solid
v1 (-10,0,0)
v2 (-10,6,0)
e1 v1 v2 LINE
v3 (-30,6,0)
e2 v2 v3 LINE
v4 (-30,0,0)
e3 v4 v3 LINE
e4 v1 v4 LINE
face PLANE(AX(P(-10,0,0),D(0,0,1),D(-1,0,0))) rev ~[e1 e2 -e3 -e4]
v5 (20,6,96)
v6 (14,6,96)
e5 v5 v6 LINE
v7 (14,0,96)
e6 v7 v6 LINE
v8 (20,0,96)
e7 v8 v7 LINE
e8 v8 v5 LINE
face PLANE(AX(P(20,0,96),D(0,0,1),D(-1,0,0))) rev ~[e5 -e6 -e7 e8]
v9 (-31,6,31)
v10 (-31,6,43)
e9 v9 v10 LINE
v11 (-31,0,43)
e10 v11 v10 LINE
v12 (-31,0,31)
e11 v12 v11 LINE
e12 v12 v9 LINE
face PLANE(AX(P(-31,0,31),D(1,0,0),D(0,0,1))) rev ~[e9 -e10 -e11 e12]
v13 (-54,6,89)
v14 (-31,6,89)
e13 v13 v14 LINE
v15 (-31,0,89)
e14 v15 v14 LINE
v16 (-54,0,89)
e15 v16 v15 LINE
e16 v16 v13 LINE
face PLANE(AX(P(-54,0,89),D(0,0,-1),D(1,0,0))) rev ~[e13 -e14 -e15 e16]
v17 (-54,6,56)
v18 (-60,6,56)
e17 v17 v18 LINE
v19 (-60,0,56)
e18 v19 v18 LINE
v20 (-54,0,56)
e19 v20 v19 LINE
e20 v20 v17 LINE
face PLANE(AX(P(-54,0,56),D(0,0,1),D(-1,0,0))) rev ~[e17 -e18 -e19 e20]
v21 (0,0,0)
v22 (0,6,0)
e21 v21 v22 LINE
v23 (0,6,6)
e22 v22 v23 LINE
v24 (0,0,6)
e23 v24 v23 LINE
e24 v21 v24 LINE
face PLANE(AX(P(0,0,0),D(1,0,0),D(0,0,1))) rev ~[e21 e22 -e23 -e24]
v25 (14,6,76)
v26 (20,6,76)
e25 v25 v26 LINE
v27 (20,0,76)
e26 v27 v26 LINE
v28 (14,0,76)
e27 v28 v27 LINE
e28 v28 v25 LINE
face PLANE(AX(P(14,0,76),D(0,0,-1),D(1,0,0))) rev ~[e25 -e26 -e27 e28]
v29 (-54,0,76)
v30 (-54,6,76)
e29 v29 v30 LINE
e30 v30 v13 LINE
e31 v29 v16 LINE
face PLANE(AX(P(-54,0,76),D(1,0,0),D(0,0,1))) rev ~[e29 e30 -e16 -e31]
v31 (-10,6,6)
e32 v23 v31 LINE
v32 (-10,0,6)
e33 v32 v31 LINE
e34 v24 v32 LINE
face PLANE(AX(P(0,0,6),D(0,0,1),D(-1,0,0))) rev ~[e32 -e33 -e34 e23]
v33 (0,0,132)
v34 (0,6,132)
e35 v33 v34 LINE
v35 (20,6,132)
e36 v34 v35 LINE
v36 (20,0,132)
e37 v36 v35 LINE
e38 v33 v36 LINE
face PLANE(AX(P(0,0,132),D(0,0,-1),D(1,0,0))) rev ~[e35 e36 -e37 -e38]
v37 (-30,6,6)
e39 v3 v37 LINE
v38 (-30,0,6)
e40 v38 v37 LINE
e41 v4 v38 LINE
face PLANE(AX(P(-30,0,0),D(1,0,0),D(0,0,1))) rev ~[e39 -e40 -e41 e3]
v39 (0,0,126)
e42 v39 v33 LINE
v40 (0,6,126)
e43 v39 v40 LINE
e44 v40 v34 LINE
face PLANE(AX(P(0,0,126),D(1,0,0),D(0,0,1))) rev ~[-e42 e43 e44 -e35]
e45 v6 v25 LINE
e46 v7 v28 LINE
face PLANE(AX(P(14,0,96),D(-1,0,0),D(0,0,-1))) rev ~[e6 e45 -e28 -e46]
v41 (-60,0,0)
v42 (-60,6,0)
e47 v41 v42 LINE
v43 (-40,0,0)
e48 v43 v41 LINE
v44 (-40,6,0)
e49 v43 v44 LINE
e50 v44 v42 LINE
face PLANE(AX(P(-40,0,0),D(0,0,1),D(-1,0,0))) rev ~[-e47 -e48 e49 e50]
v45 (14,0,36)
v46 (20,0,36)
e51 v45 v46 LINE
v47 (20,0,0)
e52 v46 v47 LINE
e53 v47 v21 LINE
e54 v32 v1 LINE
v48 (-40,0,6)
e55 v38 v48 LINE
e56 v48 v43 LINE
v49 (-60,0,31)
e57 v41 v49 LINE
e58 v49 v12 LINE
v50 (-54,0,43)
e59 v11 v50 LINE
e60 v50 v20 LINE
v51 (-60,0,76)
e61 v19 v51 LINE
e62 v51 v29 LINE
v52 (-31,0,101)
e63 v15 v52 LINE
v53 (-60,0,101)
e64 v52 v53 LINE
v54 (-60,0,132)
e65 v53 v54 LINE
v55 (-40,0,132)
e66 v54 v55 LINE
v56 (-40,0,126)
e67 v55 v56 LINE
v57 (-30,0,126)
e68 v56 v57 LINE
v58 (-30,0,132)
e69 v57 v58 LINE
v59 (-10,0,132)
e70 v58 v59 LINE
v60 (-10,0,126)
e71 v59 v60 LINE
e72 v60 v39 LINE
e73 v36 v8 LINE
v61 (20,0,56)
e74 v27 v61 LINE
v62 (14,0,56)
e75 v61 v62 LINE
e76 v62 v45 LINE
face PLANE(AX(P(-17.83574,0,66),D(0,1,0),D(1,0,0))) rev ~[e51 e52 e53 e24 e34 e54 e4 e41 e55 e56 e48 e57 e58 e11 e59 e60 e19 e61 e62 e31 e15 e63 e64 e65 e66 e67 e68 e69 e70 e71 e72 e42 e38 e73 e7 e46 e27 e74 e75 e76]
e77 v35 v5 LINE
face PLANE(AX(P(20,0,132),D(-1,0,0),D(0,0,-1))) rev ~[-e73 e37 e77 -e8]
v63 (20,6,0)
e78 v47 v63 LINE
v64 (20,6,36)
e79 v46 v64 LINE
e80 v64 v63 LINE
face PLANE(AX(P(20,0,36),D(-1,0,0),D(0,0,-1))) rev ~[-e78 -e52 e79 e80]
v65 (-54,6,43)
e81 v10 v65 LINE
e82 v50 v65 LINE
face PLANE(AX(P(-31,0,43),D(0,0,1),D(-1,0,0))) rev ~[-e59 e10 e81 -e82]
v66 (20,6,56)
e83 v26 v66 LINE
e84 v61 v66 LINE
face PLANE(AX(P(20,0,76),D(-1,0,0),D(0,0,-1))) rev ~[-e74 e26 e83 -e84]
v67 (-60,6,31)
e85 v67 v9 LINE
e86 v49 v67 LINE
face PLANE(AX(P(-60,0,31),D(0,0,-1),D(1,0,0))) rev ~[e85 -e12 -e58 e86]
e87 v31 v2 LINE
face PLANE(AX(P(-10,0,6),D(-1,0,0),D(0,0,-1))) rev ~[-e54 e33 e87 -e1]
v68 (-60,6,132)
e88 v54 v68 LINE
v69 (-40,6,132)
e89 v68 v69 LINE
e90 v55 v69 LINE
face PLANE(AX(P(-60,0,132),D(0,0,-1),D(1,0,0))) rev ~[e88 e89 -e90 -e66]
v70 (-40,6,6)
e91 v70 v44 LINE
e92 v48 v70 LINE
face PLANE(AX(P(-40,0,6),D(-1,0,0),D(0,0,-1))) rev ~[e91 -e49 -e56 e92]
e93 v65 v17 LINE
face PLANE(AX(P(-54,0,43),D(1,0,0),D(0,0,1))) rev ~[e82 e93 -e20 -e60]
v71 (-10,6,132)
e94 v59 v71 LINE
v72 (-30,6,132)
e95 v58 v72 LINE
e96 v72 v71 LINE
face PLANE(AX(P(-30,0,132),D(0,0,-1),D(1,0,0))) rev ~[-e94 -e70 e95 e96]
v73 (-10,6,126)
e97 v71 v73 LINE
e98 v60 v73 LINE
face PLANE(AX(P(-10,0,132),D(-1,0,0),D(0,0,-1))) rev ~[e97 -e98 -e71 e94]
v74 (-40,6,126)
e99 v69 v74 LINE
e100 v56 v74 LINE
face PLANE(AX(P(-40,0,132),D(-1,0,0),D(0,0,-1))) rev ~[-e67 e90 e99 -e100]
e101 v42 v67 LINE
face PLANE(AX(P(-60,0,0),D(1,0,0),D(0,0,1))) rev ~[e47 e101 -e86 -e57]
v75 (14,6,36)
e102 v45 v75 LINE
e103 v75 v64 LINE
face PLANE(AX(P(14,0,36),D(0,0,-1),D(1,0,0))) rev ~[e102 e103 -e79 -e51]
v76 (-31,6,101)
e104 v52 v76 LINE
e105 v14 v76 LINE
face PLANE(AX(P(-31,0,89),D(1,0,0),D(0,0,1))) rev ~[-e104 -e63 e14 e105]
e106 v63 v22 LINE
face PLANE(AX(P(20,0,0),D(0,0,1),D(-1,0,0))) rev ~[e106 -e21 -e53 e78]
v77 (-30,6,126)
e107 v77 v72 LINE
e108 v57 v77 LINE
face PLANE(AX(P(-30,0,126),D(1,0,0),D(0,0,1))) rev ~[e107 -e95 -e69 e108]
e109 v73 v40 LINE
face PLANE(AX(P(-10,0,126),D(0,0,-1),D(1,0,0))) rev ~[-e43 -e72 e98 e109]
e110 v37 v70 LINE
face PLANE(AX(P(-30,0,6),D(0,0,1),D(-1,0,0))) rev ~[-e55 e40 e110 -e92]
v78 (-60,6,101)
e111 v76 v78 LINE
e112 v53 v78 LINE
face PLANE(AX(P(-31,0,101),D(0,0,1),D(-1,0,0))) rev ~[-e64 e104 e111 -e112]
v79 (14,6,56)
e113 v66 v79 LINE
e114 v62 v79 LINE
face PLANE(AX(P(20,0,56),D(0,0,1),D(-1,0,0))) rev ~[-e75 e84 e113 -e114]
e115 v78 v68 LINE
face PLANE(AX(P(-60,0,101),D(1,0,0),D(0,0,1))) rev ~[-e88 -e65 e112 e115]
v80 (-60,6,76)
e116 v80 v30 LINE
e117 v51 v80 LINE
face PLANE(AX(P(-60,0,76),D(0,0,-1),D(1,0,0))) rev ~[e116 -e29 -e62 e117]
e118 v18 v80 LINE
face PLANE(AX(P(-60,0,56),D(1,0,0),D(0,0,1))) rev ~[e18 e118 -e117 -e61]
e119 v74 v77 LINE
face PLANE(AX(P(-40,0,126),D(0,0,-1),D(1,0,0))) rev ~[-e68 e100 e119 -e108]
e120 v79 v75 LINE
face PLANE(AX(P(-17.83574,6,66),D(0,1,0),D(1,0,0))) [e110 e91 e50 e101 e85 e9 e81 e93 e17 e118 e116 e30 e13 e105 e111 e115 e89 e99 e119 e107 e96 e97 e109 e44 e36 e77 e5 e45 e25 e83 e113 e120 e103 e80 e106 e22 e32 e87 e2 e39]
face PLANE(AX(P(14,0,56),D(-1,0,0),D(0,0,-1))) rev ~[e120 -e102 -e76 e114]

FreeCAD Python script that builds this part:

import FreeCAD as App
import Part
import Sketcher

doc = App.newDocument("Part")
params = doc.addObject("Spreadsheet::Sheet", "Params")
for row, (alias, value) in enumerate([
    ("sketch1_width", "20 mm"),
    ("sketch1_width2", "29 mm"),
    ("sketch1_width3", "23 mm"),
    ("sketch1_width4", "10 mm"),
    ("sketch1_height", "31 mm"),
    ("pad1_length", "6 mm"),
], start=1):
    params.set(f"A{row}", alias)
    params.set(f"B{row}", "=" + value)
    params.setAlias(f"B{row}", alias)

body = doc.addObject("PartDesign::Body", "Body")

sketch1 = body.newObject("Sketcher::SketchObject", "Sketch")
sketch1.AttachmentSupport = (doc.getObject("XZ_Plane"), [""])
sketch1.MapMode = "FlatFace"
sketch1.addGeometry(Part.LineSegment(App.Vector(-40, 6, 0), App.Vector(-40, 0, 0)), False)
sketch1.addGeometry(Part.LineSegment(App.Vector(-40, 0, 0), App.Vector(-60, 0, 0)), False)
sketch1.addGeometry(Part.LineSegment(App.Vector(-60, 0, 0), App.Vector(-60, 31, 0)), False)
sketch1.addGeometry(Part.LineSegment(App.Vector(-60, 31, 0), App.Vector(-31, 31, 0)), False)
sketch1.addGeometry(Part.LineSegment(App.Vector(-31, 31, 0), App.Vector(-31, 43, 0)), False)
sketch1.addGeometry(Part.LineSegment(App.Vector(-31, 43, 0), App.Vector(-54, 43, 0)), False)
sketch1.addGeometry(Part.LineSegment(App.Vector(-54, 43, 0), App.Vector(-54, 56, 0)), False)
sketch1.addGeometry(Part.LineSegment(App.Vector(-54, 56, 0), App.Vector(-60, 56, 0)), False)
sketch1.addGeometry(Part.LineSegment(App.Vector(-60, 56, 0), App.Vector(-60, 76, 0)), False)
sketch1.addGeometry(Part.LineSegment(App.Vector(-60, 76, 0), App.Vector(-54, 76, 0)), False)
sketch1.addGeometry(Part.LineSegment(App.Vector(-54, 76, 0), App.Vector(-54, 89, 0)), False)
sketch1.addGeometry(Part.LineSegment(App.Vector(-54, 89, 0), App.Vector(-31, 89, 0)), False)
sketch1.addGeometry(Part.LineSegment(App.Vector(-31, 89, 0), App.Vector(-31, 101, 0)), False)
sketch1.addGeometry(Part.LineSegment(App.Vector(-31, 101, 0), App.Vector(-60, 101, 0)), False)
sketch1.addGeometry(Part.LineSegment(App.Vector(-60, 101, 0), App.Vector(-60, 132, 0)), False)
sketch1.addGeometry(Part.LineSegment(App.Vector(-60, 132, 0), App.Vector(-40, 132, 0)), False)
sketch1.addGeometry(Part.LineSegment(App.Vector(-40, 132, 0), App.Vector(-40, 126, 0)), False)
sketch1.addGeometry(Part.LineSegment(App.Vector(-40, 126, 0), App.Vector(-30, 126, 0)), False)
sketch1.addGeometry(Part.LineSegment(App.Vector(-30, 126, 0), App.Vector(-30, 132, 0)), False)
sketch1.addGeometry(Part.LineSegment(App.Vector(-30, 132, 0), App.Vector(-10, 132, 0)), False)
sketch1.addGeometry(Part.LineSegment(App.Vector(-10, 132, 0), App.Vector(-10, 126, 0)), False)
sketch1.addGeometry(Part.LineSegment(App.Vector(-10, 126, 0), App.Vector(0, 126, 0)), False)
sketch1.addGeometry(Part.LineSegment(App.Vector(0, 126, 0), App.Vector(0, 132, 0)), False)
sketch1.addGeometry(Part.LineSegment(App.Vector(0, 132, 0), App.Vector(20, 132, 0)), False)
sketch1.addGeometry(Part.LineSegment(App.Vector(20, 132, 0), App.Vector(20, 96, 0)), False)
sketch1.addGeometry(Part.LineSegment(App.Vector(20, 96, 0), App.Vector(14, 96, 0)), False)
sketch1.addGeometry(Part.LineSegment(App.Vector(14, 96, 0), App.Vector(14, 76, 0)), False)
sketch1.addGeometry(Part.LineSegment(App.Vector(14, 76, 0), App.Vector(20, 76, 0)), False)
sketch1.addGeometry(Part.LineSegment(App.Vector(20, 76, 0), App.Vector(20, 56, 0)), False)
sketch1.addGeometry(Part.LineSegment(App.Vector(20, 56, 0), App.Vector(14, 56, 0)), False)
sketch1.addGeometry(Part.LineSegment(App.Vector(14, 56, 0), App.Vector(14, 36, 0)), False)
sketch1.addGeometry(Part.LineSegment(App.Vector(14, 36, 0), App.Vector(20, 36, 0)), False)
sketch1.addGeometry(Part.LineSegment(App.Vector(20, 36, 0), App.Vector(20, 0, 0)), False)
sketch1.addGeometry(Part.LineSegment(App.Vector(20, 0, 0), App.Vector(0, 0, 0)), False)
sketch1.addGeometry(Part.LineSegment(App.Vector(0, 0, 0), App.Vector(0, 6, 0)), False)
sketch1.addGeometry(Part.LineSegment(App.Vector(0, 6, 0), App.Vector(-10, 6, 0)), False)
sketch1.addGeometry(Part.LineSegment(App.Vector(-10, 6, 0), App.Vector(-10, 0, 0)), False)
sketch1.addGeometry(Part.LineSegment(App.Vector(-10, 0, 0), App.Vector(-30, 0, 0)), False)
sketch1.addGeometry(Part.LineSegment(App.Vector(-30, 0, 0), App.Vector(-30, 6, 0)), False)
sketch1.addGeometry(Part.LineSegment(App.Vector(-30, 6, 0), App.Vector(-40, 6, 0)), False)
sketch1.addConstraint(Sketcher.Constraint("Coincident", 0, 2, 1, 1))
sketch1.addConstraint(Sketcher.Constraint("Coincident", 1, 2, 2, 1))
sketch1.addConstraint(Sketcher.Constraint("Coincident", 2, 2, 3, 1))
sketch1.addConstraint(Sketcher.Constraint("Coincident", 3, 2, 4, 1))
sketch1.addConstraint(Sketcher.Constraint("Coincident", 4, 2, 5, 1))
sketch1.addConstraint(Sketcher.Constraint("Coincident", 5, 2, 6, 1))
sketch1.addConstraint(Sketcher.Constraint("Coincident", 6, 2, 7, 1))
sketch1.addConstraint(Sketcher.Constraint("Coincident", 7, 2, 8, 1))
sketch1.addConstraint(Sketcher.Constraint("Coincident", 8, 2, 9, 1))
sketch1.addConstraint(Sketcher.Constraint("Coincident", 9, 2, 10, 1))
sketch1.addConstraint(Sketcher.Constraint("Coincident", 10, 2, 11, 1))
sketch1.addConstraint(Sketcher.Constraint("Coincident", 11, 2, 12, 1))
sketch1.addConstraint(Sketcher.Constraint("Coincident", 12, 2, 13, 1))
sketch1.addConstraint(Sketcher.Constraint("Coincident", 13, 2, 14, 1))
sketch1.addConstraint(Sketcher.Constraint("Coincident", 14, 2, 15, 1))
sketch1.addConstraint(Sketcher.Constraint("Coincident", 15, 2, 16, 1))
sketch1.addConstraint(Sketcher.Constraint("Coincident", 16, 2, 17, 1))
sketch1.addConstraint(Sketcher.Constraint("Coincident", 17, 2, 18, 1))
sketch1.addConstraint(Sketcher.Constraint("Coincident", 18, 2, 19, 1))
sketch1.addConstraint(Sketcher.Constraint("Coincident", 19, 2, 20, 1))
sketch1.addConstraint(Sketcher.Constraint("Coincident", 20, 2, 21, 1))
sketch1.addConstraint(Sketcher.Constraint("Coincident", 21, 2, 22, 1))
sketch1.addConstraint(Sketcher.Constraint("Coincident", 22, 2, 23, 1))
sketch1.addConstraint(Sketcher.Constraint("Coincident", 23, 2, 24, 1))
sketch1.addConstraint(Sketcher.Constraint("Coincident", 24, 2, 25, 1))
sketch1.addConstraint(Sketcher.Constraint("Coincident", 25, 2, 26, 1))
sketch1.addConstraint(Sketcher.Constraint("Coincident", 26, 2, 27, 1))
sketch1.addConstraint(Sketcher.Constraint("Coincident", 27, 2, 28, 1))
sketch1.addConstraint(Sketcher.Constraint("Coincident", 28, 2, 29, 1))
sketch1.addConstraint(Sketcher.Constraint("Coincident", 29, 2, 30, 1))
sketch1.addConstraint(Sketcher.Constraint("Coincident", 30, 2, 31, 1))
sketch1.addConstraint(Sketcher.Constraint("Coincident", 31, 2, 32, 1))
sketch1.addConstraint(Sketcher.Constraint("Coincident", 32, 2, 33, 1))
sketch1.addConstraint(Sketcher.Constraint("Coincident", 33, 2, 34, 1))
sketch1.addConstraint(Sketcher.Constraint("Coincident", 34, 2, 35, 1))
sketch1.addConstraint(Sketcher.Constraint("Coincident", 35, 2, 36, 1))
sketch1.addConstraint(Sketcher.Constraint("Coincident", 36, 2, 37, 1))
sketch1.addConstraint(Sketcher.Constraint("Coincident", 37, 2, 38, 1))
sketch1.addConstraint(Sketcher.Constraint("Coincident", 38, 2, 39, 1))
sketch1.addConstraint(Sketcher.Constraint("Coincident", 39, 2, 0, 1))
sketch1.addConstraint(Sketcher.Constraint("Vertical", 0))
sketch1.addConstraint(Sketcher.Constraint("Horizontal", 1))
sketch1.addConstraint(Sketcher.Constraint("Vertical", 2))
sketch1.addConstraint(Sketcher.Constraint("Horizontal", 3))
sketch1.addConstraint(Sketcher.Constraint("Vertical", 4))
sketch1.addConstraint(Sketcher.Constraint("Horizontal", 5))
sketch1.addConstraint(Sketcher.Constraint("Vertical", 6))
sketch1.addConstraint(Sketcher.Constraint("Horizontal", 7))
sketch1.addConstraint(Sketcher.Constraint("Vertical", 8))
sketch1.addConstraint(Sketcher.Constraint("Horizontal", 9))
sketch1.addConstraint(Sketcher.Constraint("Vertical", 10))
sketch1.addConstraint(Sketcher.Constraint("Horizontal", 11))
sketch1.addConstraint(Sketcher.Constraint("Vertical", 12))
sketch1.addConstraint(Sketcher.Constraint("Horizontal", 13))
sketch1.addConstraint(Sketcher.Constraint("Vertical", 14))
sketch1.addConstraint(Sketcher.Constraint("Horizontal", 15))
sketch1.addConstraint(Sketcher.Constraint("Vertical", 16))
sketch1.addConstraint(Sketcher.Constraint("Horizontal", 17))
sketch1.addConstraint(Sketcher.Constraint("Vertical", 18))
sketch1.addConstraint(Sketcher.Constraint("Horizontal", 19))
sketch1.addConstraint(Sketcher.Constraint("Vertical", 20))
sketch1.addConstraint(Sketcher.Constraint("Horizontal", 21))
sketch1.addConstraint(Sketcher.Constraint("Vertical", 22))
sketch1.addConstraint(Sketcher.Constraint("Horizontal", 23))
sketch1.addConstraint(Sketcher.Constraint("Vertical", 24))
sketch1.addConstraint(Sketcher.Constraint("Horizontal", 25))
sketch1.addConstraint(Sketcher.Constraint("Vertical", 26))
sketch1.addConstraint(Sketcher.Constraint("Horizontal", 27))
sketch1.addConstraint(Sketcher.Constraint("Vertical", 28))
sketch1.addConstraint(Sketcher.Constraint("Horizontal", 29))
sketch1.addConstraint(Sketcher.Constraint("Vertical", 30))
sketch1.addConstraint(Sketcher.Constraint("Horizontal", 31))
sketch1.addConstraint(Sketcher.Constraint("Vertical", 32))
sketch1.addConstraint(Sketcher.Constraint("Horizontal", 33))
sketch1.addConstraint(Sketcher.Constraint("Vertical", 34))
sketch1.addConstraint(Sketcher.Constraint("Horizontal", 35))
sketch1.addConstraint(Sketcher.Constraint("Vertical", 36))
sketch1.addConstraint(Sketcher.Constraint("Horizontal", 37))
sketch1.addConstraint(Sketcher.Constraint("Vertical", 38))
sketch1.addConstraint(Sketcher.Constraint("Horizontal", 39))
sketch1.addConstraint(Sketcher.Constraint("Coincident", 33, 2, -1, 1))
sketch1.addConstraint(Sketcher.Constraint("PointOnObject", 0, 2, -1))
sketch1.addConstraint(Sketcher.Constraint("PointOnObject", 21, 2, -2))
sketch1.addConstraint(Sketcher.Constraint("PointOnObject", 36, 2, -1))
sketch1.addConstraint(Sketcher.Constraint("Horizontal", 15, 2, 18, 2))
sketch1.addConstraint(Sketcher.Constraint("Horizontal", 17, 2, 20, 2))
sketch1.addConstraint(Sketcher.Constraint("Horizontal", 19, 2, 22, 2))
sketch1.addConstraint(Sketcher.Constraint("Horizontal", 9, 2, 26, 2))
sketch1.addConstraint(Sketcher.Constraint("Horizontal", 7, 2, 28, 2))
sketch1.addConstraint(Sketcher.Constraint("Horizontal", 35, 2, 38, 2))
sketch1.addConstraint(Sketcher.Constraint("Vertical", 2, 2, 7, 2))
sketch1.addConstraint(Sketcher.Constraint("Vertical", 6, 2, 9, 2))
sketch1.addConstraint(Sketcher.Constraint("Vertical", 4, 2, 11, 2))
sketch1.addConstraint(Sketcher.Constraint("Vertical", 8, 2, 13, 2))
sketch1.addConstraint(Sketcher.Constraint("Vertical", 0, 2, 15, 2))
sketch1.addConstraint(Sketcher.Constraint("Vertical", 24, 2, 27, 2))
sketch1.addConstraint(Sketcher.Constraint("Vertical", 26, 2, 29, 2))
sketch1.addConstraint(Sketcher.Constraint("Vertical", 28, 2, 31, 2))
sketch1.addConstraint(Sketcher.Constraint("Vertical", 20, 2, 35, 2))
sketch1.addConstraint(Sketcher.Constraint("Vertical", 18, 2, 37, 2))
sketch1.addConstraint(Sketcher.Constraint("Equal", 15, 19))
sketch1.addConstraint(Sketcher.Constraint("Equal", 17, 21))
sketch1.addConstraint(Sketcher.Constraint("Equal", 19, 23))
sketch1.addConstraint(Sketcher.Constraint("Equal", 9, 25))
sketch1.addConstraint(Sketcher.Constraint("Equal", 31, 0))
sketch1.addConstraint(Sketcher.Constraint("Equal", 37, 8))
sketch1.addConstraint(Sketcher.Constraint("Equal", 6, 10))
sketch1.addConstraint(Sketcher.Constraint("Equal", 4, 12))
sketch1.addConstraint(Sketcher.Constraint("Equal", 2, 14))
sketch1.addConstraint(Sketcher.Constraint("Equal", 0, 16))
sketch1.addConstraint(Sketcher.Constraint("Equal", 8, 26))
sketch1.addConstraint(Sketcher.Constraint("Equal", 28, 30))
sketch1.addConstraint(Sketcher.Constraint("DistanceX", 1, 2, 1, 1, 20.0))
sketch1.addConstraint(Sketcher.Constraint("DistanceX", 3, 1, 3, 2, 29.0))
sketch1.addConstraint(Sketcher.Constraint("DistanceX", 5, 2, 5, 1, 23.0))
sketch1.addConstraint(Sketcher.Constraint("DistanceX", 17, 1, 17, 2, 10.0))
sketch1.addConstraint(Sketcher.Constraint("DistanceY", 2, 1, 2, 2, 31.0))
sketch1.addConstraint(Sketcher.Constraint("DistanceY", 4, 1, 4, 2, 12.0))
sketch1.addConstraint(Sketcher.Constraint("DistanceY", 6, 1, 6, 2, 13.0))
sketch1.setExpression("Constraints[112]", "Params.sketch1_width")
sketch1.setExpression("Constraints[113]", "Params.sketch1_width2")
sketch1.setExpression("Constraints[114]", "Params.sketch1_width3")
sketch1.setExpression("Constraints[115]", "Params.sketch1_width4")
sketch1.setExpression("Constraints[116]", "Params.sketch1_height")
pad1 = body.newObject("PartDesign::Pad", "Pad")
pad1.Profile = sketch1
pad1.setExpression("Length", "Params.pad1_length")
pad1.Reversed = True

doc.recompute()
